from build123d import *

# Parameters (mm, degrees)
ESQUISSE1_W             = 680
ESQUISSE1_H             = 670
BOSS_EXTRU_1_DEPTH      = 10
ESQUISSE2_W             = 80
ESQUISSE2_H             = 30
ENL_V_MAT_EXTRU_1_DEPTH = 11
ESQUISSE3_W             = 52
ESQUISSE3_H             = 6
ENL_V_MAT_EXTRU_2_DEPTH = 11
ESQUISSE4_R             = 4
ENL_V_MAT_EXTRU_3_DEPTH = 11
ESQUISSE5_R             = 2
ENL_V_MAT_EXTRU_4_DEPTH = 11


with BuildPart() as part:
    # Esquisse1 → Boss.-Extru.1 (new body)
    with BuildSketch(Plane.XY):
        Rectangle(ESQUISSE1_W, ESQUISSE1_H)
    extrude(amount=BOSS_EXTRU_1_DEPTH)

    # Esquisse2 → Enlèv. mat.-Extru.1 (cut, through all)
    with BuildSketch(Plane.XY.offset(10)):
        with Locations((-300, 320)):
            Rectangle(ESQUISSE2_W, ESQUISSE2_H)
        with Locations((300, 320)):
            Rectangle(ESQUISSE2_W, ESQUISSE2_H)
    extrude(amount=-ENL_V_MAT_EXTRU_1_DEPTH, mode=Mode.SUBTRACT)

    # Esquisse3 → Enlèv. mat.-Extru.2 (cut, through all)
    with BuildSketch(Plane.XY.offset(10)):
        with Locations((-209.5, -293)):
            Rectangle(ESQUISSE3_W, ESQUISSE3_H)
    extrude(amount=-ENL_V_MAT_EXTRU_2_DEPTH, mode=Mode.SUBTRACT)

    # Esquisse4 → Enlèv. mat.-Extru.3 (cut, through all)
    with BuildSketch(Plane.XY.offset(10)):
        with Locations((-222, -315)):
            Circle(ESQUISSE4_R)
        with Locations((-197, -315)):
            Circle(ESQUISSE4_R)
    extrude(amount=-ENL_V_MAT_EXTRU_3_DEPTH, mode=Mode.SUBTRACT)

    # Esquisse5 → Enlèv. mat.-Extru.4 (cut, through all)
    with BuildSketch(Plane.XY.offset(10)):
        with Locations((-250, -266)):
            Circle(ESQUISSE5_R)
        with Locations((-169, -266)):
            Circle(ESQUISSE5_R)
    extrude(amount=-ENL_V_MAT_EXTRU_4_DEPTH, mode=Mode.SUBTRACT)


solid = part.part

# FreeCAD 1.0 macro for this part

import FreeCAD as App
import Part
import Sketcher

V = App.Vector
Q = App.Units.Quantity

doc = App.newDocument("Part")
body = doc.addObject("PartDesign::Body", "Body")

sketch1 = body.newObject("Sketcher::SketchObject", "Sketch")
sketch1.AttachmentSupport = (doc.getObject("XY_Plane"), [""])
sketch1.MapMode = "FlatFace"
sketch1.addGeometry(Part.LineSegment(V(-340, 335, 0), V(-340, -335, 0)), False)
sketch1.addGeometry(Part.LineSegment(V(-340, -335, 0), V(340, -335, 0)), False)
sketch1.addGeometry(Part.LineSegment(V(340, -335, 0), V(340, 335, 0)), False)
sketch1.addGeometry(Part.LineSegment(V(340, 335, 0), V(-340, 335, 0)), False)
sketch1.addConstraint(Sketcher.Constraint("Coincident", 0, 2, 1, 1))
sketch1.addConstraint(Sketcher.Constraint("Coincident", 1, 2, 2, 1))
sketch1.addConstraint(Sketcher.Constraint("Coincident", 2, 2, 3, 1))
sketch1.addConstraint(Sketcher.Constraint("Coincident", 3, 2, 0, 1))
sketch1.addConstraint(Sketcher.Constraint("Vertical", 0))
sketch1.addConstraint(Sketcher.Constraint("Horizontal", 1))
sketch1.addConstraint(Sketcher.Constraint("Vertical", 2))
sketch1.addConstraint(Sketcher.Constraint("Horizontal", 3))
sketch1.addConstraint(Sketcher.Constraint("Symmetric", 0, 2, 2, 2, -1, 1))
sketch1.addConstraint(Sketcher.Constraint("DistanceX", 1, 1, 1, 2, Q("680 mm")))
sketch1.addConstraint(Sketcher.Constraint("DistanceY", 0, 2, 0, 1, Q("670 mm")))
pad1 = body.newObject("PartDesign::Pad", "Pad")
pad1.Profile = sketch1
pad1.Length = 10

sketch2 = body.newObject("Sketcher::SketchObject", "Sketch001")
sketch2.AttachmentSupport = (doc.getObject("XY_Plane"), [""])
sketch2.MapMode = "FlatFace"
sketch2.AttachmentOffset = App.Placement(V(0, 0, 10), App.Rotation())
sketch2.addGeometry(Part.LineSegment(V(-340, 335, 0), V(-340, 305, 0)), False)
sketch2.addGeometry(Part.LineSegment(V(-340, 305, 0), V(-260, 305, 0)), False)
sketch2.addGeometry(Part.LineSegment(V(-260, 305, 0), V(-260, 335, 0)), False)
sketch2.addGeometry(Part.LineSegment(V(-260, 335, 0), V(-340, 335, 0)), False)
sketch2.addGeometry(Part.LineSegment(V(260, 335, 0), V(260, 305, 0)), False)
sketch2.addGeometry(Part.LineSegment(V(260, 305, 0), V(340, 305, 0)), False)
sketch2.addGeometry(Part.LineSegment(V(340, 305, 0), V(340, 335, 0)), False)
sketch2.addGeometry(Part.LineSegment(V(340, 335, 0), V(260, 335, 0)), False)
sketch2.addConstraint(Sketcher.Constraint("Coincident", 0, 2, 1, 1))
sketch2.addConstraint(Sketcher.Constraint("Coincident", 1, 2, 2, 1))
sketch2.addConstraint(Sketcher.Constraint("Coincident", 2, 2, 3, 1))
sketch2.addConstraint(Sketcher.Constraint("Coincident", 3, 2, 0, 1))
sketch2.addConstraint(Sketcher.Constraint("Coincident", 4, 2, 5, 1))
sketch2.addConstraint(Sketcher.Constraint("Coincident", 5, 2, 6, 1))
sketch2.addConstraint(Sketcher.Constraint("Coincident", 6, 2, 7, 1))
sketch2.addConstraint(Sketcher.Constraint("Coincident", 7, 2, 4, 1))
sketch2.addConstraint(Sketcher.Constraint("Vertical", 0))
sketch2.addConstraint(Sketcher.Constraint("Horizontal", 1))
sketch2.addConstraint(Sketcher.Constraint("Vertical", 2))
sketch2.addConstraint(Sketcher.Constraint("Horizontal", 3))
sketch2.addConstraint(Sketcher.Constraint("Vertical", 4))
sketch2.addConstraint(Sketcher.Constraint("Horizontal", 5))
sketch2.addConstraint(Sketcher.Constraint("Vertical", 6))
sketch2.addConstraint(Sketcher.Constraint("Horizontal", 7))
sketch2.addConstraint(Sketcher.Constraint("Symmetric", 1, 2, 4, 2, -2))
sketch2.addConstraint(Sketcher.Constraint("Symmetric", 3, 2, 6, 2, -2))
sketch2.addConstraint(Sketcher.Constraint("DistanceX", 1, 1, 1, 2, Q("80 mm")))
sketch2.addConstraint(Sketcher.Constraint("DistanceY", 0, 2, 0, 1, Q("30 mm")))
sketch2.addConstraint(Sketcher.Constraint("DistanceX", 0, 2, -1, 1, Q("340 mm")))
sketch2.addConstraint(Sketcher.Constraint("DistanceY", -1, 1, 0, 2, Q("305 mm")))
pocket1 = body.newObject("PartDesign::Pocket", "Pocket")
pocket1.Profile = sketch2
pocket1.Type = "ThroughAll"

sketch3 = body.newObject("Sketcher::SketchObject", "Sketch002")
sketch3.AttachmentSupport = (doc.getObject("XY_Plane"), [""])
sketch3.MapMode = "FlatFace"
sketch3.AttachmentOffset = App.Placement(V(0, 0, 10), App.Rotation())
sketch3.addGeometry(Part.LineSegment(V(-236, -290, 0), V(-236, -296, 0)), False)
sketch3.addGeometry(Part.LineSegment(V(-236, -296, 0), V(-184, -296, 0)), False)
sketch3.addGeometry(Part.LineSegment(V(-184, -296, 0), V(-184, -290, 0)), False)
sketch3.addGeometry(Part.LineSegment(V(-184, -290, 0), V(-236, -290, 0)), False)
sketch3.addConstraint(Sketcher.Constraint("Coincident", 0, 2, 1, 1))
sketch3.addConstraint(Sketcher.Constraint("Coincident", 1, 2, 2, 1))
sketch3.addConstraint(Sketcher.Constraint("Coincident", 2, 2, 3, 1))
sketch3.addConstraint(Sketcher.Constraint("Coincident", 3, 2, 0, 1))
sketch3.addConstraint(Sketcher.Constraint("Vertical", 0))
sketch3.addConstraint(Sketcher.Constraint("Horizontal", 1))
sketch3.addConstraint(Sketcher.Constraint("Vertical", 2))
sketch3.addConstraint(Sketcher.Constraint("Horizontal", 3))
sketch3.addConstraint(Sketcher.Constraint("DistanceX", 1, 1, 1, 2, Q("52 mm")))
sketch3.addConstraint(Sketcher.Constraint("DistanceY", 0, 2, 0, 1, Q("6 mm")))
sketch3.addConstraint(Sketcher.Constraint("DistanceY", 0, 2, -1, 1, Q("296 mm")))
sketch3.addConstraint(Sketcher.Constraint("DistanceX", 0, 2, -1, 1, Q("235.5 mm")))
pocket2 = body.newObject("PartDesign::Pocket", "Pocket001")
pocket2.Profile = sketch3
pocket2.Type = "ThroughAll"

sketch4 = body.newObject("Sketcher::SketchObject", "Sketch003")
sketch4.AttachmentSupport = (doc.getObject("XY_Plane"), [""])
sketch4.MapMode = "FlatFace"
sketch4.AttachmentOffset = App.Placement(V(0, 0, 10), App.Rotation())
sketch4.addGeometry(Part.Circle(V(-222, -315, 0), V(0, 0, 1), 4), False)
sketch4.addGeometry(Part.Circle(V(-197, -315, 0), V(0, 0, 1), 4), False)
sketch4.addConstraint(Sketcher.Constraint("Equal", 0, 1))
sketch4.addConstraint(Sketcher.Constraint("Horizontal", 0, 3, 1, 3))
sketch4.addConstraint(Sketcher.Constraint("Diameter", 0, Q("8 mm")))
sketch4.addConstraint(Sketcher.Constraint("DistanceX", 0, 3, -1, 1, Q("222 mm")))
sketch4.addConstraint(Sketcher.Constraint("DistanceY", 0, 3, -1, 1, Q("315 mm")))
sketch4.addConstraint(Sketcher.Constraint("DistanceX", 1, 3, -1, 1, Q("197 mm")))
pocket3 = body.newObject("PartDesign::Pocket", "Pocket002")
pocket3.Profile = sketch4
pocket3.Type = "ThroughAll"

sketch5 = body.newObject("Sketcher::SketchObject", "Sketch004")
sketch5.AttachmentSupport = (doc.getObject("XY_Plane"), [""])
sketch5.MapMode = "FlatFace"
sketch5.AttachmentOffset = App.Placement(V(0, 0, 10), App.Rotation())
sketch5.addGeometry(Part.Circle(V(-250, -266, 0), V(0, 0, 1), 2), False)
sketch5.addGeometry(Part.Circle(V(-169, -266, 0), V(0, 0, 1), 2), False)
sketch5.addConstraint(Sketcher.Constraint("Equal", 0, 1))
sketch5.addConstraint(Sketcher.Constraint("Horizontal", 0, 3, 1, 3))
sketch5.addConstraint(Sketcher.Constraint("Diameter", 0, Q("4 mm")))
sketch5.addConstraint(Sketcher.Constraint("DistanceX", 0, 3, -1, 1, Q("250 mm")))
sketch5.addConstraint(Sketcher.Constraint("DistanceY", 0, 3, -1, 1, Q("266 mm")))
sketch5.addConstraint(Sketcher.Constraint("DistanceX", 1, 3, -1, 1, Q("169 mm")))
pocket4 = body.newObject("PartDesign::Pocket", "Pocket003")
pocket4.Profile = sketch5
pocket4.Type = "ThroughAll"

doc.recompute()
